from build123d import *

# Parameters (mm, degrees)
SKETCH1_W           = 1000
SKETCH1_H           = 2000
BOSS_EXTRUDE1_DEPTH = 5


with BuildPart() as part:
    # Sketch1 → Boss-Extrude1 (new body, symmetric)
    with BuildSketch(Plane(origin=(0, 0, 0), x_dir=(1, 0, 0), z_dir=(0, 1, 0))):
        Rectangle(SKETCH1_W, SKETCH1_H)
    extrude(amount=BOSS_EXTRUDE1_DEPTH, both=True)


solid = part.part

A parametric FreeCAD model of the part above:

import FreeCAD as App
import Part
import Sketcher
from FreeCAD import Vector
Q = App.Units.Quantity


def add_polygon(sketch, points):
    """Adds a closed chain of lines whose ends are joined by coincident constraints."""
    first, n = sketch.GeometryCount, len(points)
    for a, b in zip(points, points[1:] + points[:1]):
        sketch.addGeometry(Part.LineSegment(App.Vector(*a, 0), App.Vector(*b, 0)), False)
    for i in range(n):
        sketch.addConstraint(Sketcher.Constraint("Coincident", first + i, 2, first + (i + 1) % n, 1))

doc = App.newDocument("Part")
body = doc.addObject("PartDesign::Body", "Body")

sketch1 = doc.addObject("Sketcher::SketchObject", "Sketch")
body.addObject(sketch1)
sketch1.AttachmentSupport = (doc.XZ_Plane, [""])
sketch1.MapMode = "FlatFace"
add_polygon(sketch1, [(-500, -1000), (-500, 1000), (500, 1000), (500, -1000)])
sketch1.addConstraint(Sketcher.Constraint("Vertical", 0))
sketch1.addConstraint(Sketcher.Constraint("Horizontal", 1))
sketch1.addConstraint(Sketcher.Constraint("Vertical", 2))
sketch1.addConstraint(Sketcher.Constraint("Horizontal", 3))
sketch1.addConstraint(Sketcher.Constraint("Symmetric", 0, 2, 2, 2, -1, 1))
sketch1.addConstraint(Sketcher.Constraint("DistanceX", 1, 1, 1, 2, Q("1000 mm")))
sketch1.addConstraint(Sketcher.Constraint("DistanceY", 0, 1, 0, 2, Q("2000 mm")))
pad1 = doc.addObject("PartDesign::Pad", "Pad")
body.addObject(pad1)
pad1.Profile = sketch1
pad1.Length = 10
pad1.Midplane = True

doc.recompute()
